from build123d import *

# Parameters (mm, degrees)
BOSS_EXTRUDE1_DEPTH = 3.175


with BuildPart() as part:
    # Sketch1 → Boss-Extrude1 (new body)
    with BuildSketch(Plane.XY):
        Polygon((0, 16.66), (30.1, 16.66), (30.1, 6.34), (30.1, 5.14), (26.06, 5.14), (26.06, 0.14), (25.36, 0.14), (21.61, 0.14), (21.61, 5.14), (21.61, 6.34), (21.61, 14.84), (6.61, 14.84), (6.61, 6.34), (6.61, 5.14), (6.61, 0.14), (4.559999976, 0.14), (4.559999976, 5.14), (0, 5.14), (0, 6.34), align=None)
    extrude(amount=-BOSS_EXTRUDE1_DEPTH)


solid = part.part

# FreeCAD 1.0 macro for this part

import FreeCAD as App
import Part
import Sketcher
from FreeCAD import Vector

doc = App.newDocument("Part")
params = doc.addObject("Spreadsheet::Sheet", "Params")
for row, (alias, value) in enumerate([
    ("sketch1_width", "15 mm"),
    ("sketch1_height", "5 mm"),
    ("sketch1_width2", "30.1 mm"),
    ("sketch1_height2", "14.7 mm"),
    ("sketch1_width3", "4.56 mm"),
    ("pad1_length", "3.175 mm"),
], start=1):
    params.set(f"A{row}", alias)
    params.set(f"B{row}", "=" + value)
    params.setAlias(f"B{row}", alias)

body = doc.addObject("PartDesign::Body", "Body")

# Sketch on XY plane
sketch1 = body.newObject("Sketcher::SketchObject", "Sketch")
sketch1.AttachmentSupport = (doc.getObject("XY_Plane"), [""])
sketch1.MapMode = "FlatFace"
sketch1.addGeometry(Part.LineSegment(Vector(30.1, 16.7, 0), Vector(0, 16.7, 0)), False)
sketch1.addGeometry(Part.LineSegment(Vector(0, 16.7, 0), Vector(0, 5.1, 0)), False)
sketch1.addGeometry(Part.LineSegment(Vector(0, 5.1, 0), Vector(4.6, 5.1, 0)), False)
sketch1.addGeometry(Part.LineSegment(Vector(4.6, 5.1, 0), Vector(4.6, 0.1, 0)), False)
sketch1.addGeometry(Part.LineSegment(Vector(4.6, 0.1, 0), Vector(6.6, 0.1, 0)), False)
sketch1.addGeometry(Part.LineSegment(Vector(6.6, 0.1, 0), Vector(6.6, 14.8, 0)), False)
sketch1.addGeometry(Part.LineSegment(Vector(6.6, 14.8, 0), Vector(21.6, 14.8, 0)), False)
sketch1.addGeometry(Part.LineSegment(Vector(21.6, 14.8, 0), Vector(21.6, 0.1, 0)), False)
sketch1.addGeometry(Part.LineSegment(Vector(21.6, 0.1, 0), Vector(26.1, 0.1, 0)), False)
sketch1.addGeometry(Part.LineSegment(Vector(26.1, 0.1, 0), Vector(26.1, 5.1, 0)), False)
sketch1.addGeometry(Part.LineSegment(Vector(26.1, 5.1, 0), Vector(30.1, 5.1, 0)), False)
sketch1.addGeometry(Part.LineSegment(Vector(30.1, 5.1, 0), Vector(30.1, 16.7, 0)), False)
sketch1.addConstraint(Sketcher.Constraint("Coincident", 0, 2, 1, 1))
sketch1.addConstraint(Sketcher.Constraint("Coincident", 1, 2, 2, 1))
sketch1.addConstraint(Sketcher.Constraint("Coincident", 2, 2, 3, 1))
sketch1.addConstraint(Sketcher.Constraint("Coincident", 3, 2, 4, 1))
sketch1.addConstraint(Sketcher.Constraint("Coincident", 4, 2, 5, 1))
sketch1.addConstraint(Sketcher.Constraint("Coincident", 5, 2, 6, 1))
sketch1.addConstraint(Sketcher.Constraint("Coincident", 6, 2, 7, 1))
sketch1.addConstraint(Sketcher.Constraint("Coincident", 7, 2, 8, 1))
sketch1.addConstraint(Sketcher.Constraint("Coincident", 8, 2, 9, 1))
sketch1.addConstraint(Sketcher.Constraint("Coincident", 9, 2, 10, 1))
sketch1.addConstraint(Sketcher.Constraint("Coincident", 10, 2, 11, 1))
sketch1.addConstraint(Sketcher.Constraint("Coincident", 11, 2, 0, 1))
sketch1.addConstraint(Sketcher.Constraint("Horizontal", 0))
sketch1.addConstraint(Sketcher.Constraint("Vertical", 1))
sketch1.addConstraint(Sketcher.Constraint("Horizontal", 2))
sketch1.addConstraint(Sketcher.Constraint("Vertical", 3))
sketch1.addConstraint(Sketcher.Constraint("Horizontal", 4))
sketch1.addConstraint(Sketcher.Constraint("Vertical", 5))
sketch1.addConstraint(Sketcher.Constraint("Horizontal", 6))
sketch1.addConstraint(Sketcher.Constraint("Vertical", 7))
sketch1.addConstraint(Sketcher.Constraint("Horizontal", 8))
sketch1.addConstraint(Sketcher.Constraint("Vertical", 9))
sketch1.addConstraint(Sketcher.Constraint("Horizontal", 10))
sketch1.addConstraint(Sketcher.Constraint("Vertical", 11))
sketch1.addConstraint(Sketcher.Constraint("PointOnObject", 0, 2, -2))
sketch1.addConstraint(Sketcher.Constraint("Horizontal", 4, 2, 7, 2))
sketch1.addConstraint(Sketcher.Constraint("Horizontal", 2, 2, 9, 2))
sketch1.addConstraint(Sketcher.Constraint("DistanceX", 6, 1, 6, 2, 15.0))
sketch1.addConstraint(Sketcher.Constraint("DistanceY", 3, 2, 3, 1, 5.0))
sketch1.addConstraint(Sketcher.Constraint("DistanceX", 0, 2, 0, 1, 30.1))
sketch1.addConstraint(Sketcher.Constraint("DistanceY", 5, 1, 5, 2, 14.7))
sketch1.addConstraint(Sketcher.Constraint("DistanceX", 2, 1, 2, 2, 4.56))
sketch1.addConstraint(Sketcher.Constraint("DistanceX", 4, 1, 4, 2, 2.05))
sketch1.addConstraint(Sketcher.Constraint("DistanceX", 8, 1, 8, 2, 4.45))
sketch1.addConstraint(Sketcher.Constraint("DistanceY", 1, 2, 1, 1, 11.52))
sketch1.addConstraint(Sketcher.Constraint("DistanceY", -1, 1, 0, 2, 16.66))
sketch1.setExpression("Constraints[27]", "Params.sketch1_width")
sketch1.setExpression("Constraints[28]", "Params.sketch1_height")
sketch1.setExpression("Constraints[29]", "Params.sketch1_width2")
sketch1.setExpression("Constraints[30]", "Params.sketch1_height2")
sketch1.setExpression("Constraints[31]", "Params.sketch1_width3")
pad1 = body.newObject("PartDesign::Pad", "Pad")
pad1.Profile = sketch1
pad1.setExpression("Length", "Params.pad1_length")
pad1.Reversed = True

doc.recompute()
